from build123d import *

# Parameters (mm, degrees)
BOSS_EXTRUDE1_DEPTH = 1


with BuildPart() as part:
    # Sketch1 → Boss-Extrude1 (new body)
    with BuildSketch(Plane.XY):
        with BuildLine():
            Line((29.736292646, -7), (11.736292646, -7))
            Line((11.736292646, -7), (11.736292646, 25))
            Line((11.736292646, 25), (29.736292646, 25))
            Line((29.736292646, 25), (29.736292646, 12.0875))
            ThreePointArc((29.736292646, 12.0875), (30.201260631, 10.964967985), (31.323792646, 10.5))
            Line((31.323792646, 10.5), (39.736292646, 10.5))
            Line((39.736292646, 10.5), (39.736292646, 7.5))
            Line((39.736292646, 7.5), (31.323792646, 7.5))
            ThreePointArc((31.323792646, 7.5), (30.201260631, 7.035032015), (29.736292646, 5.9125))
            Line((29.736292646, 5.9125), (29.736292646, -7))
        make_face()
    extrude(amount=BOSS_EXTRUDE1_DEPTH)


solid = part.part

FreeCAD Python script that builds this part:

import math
import FreeCAD as App
import Part
import Sketcher
Q = App.Units.Quantity

doc = App.newDocument("Part")
params = doc.addObject("Spreadsheet::Sheet", "Params")
for row, (alias, value) in enumerate([
    ("sketch1_width", "18 mm"),
    ("sketch1_height", "3 mm"),
    ("sketch1_height2", "32 mm"),
    ("pad1_length", "1 mm"),
], start=1):
    params.set(f"A{row}", alias)
    params.set(f"B{row}", "=" + value)
    params.setAlias(f"B{row}", alias)

body = doc.addObject("PartDesign::Body", "Body")

sketch1 = body.newObject("Sketcher::SketchObject", "Sketch")
sketch1.AttachmentSupport = (doc.getObject("XY_Plane"), [""])
sketch1.MapMode = "FlatFace"
sketch1.addGeometry([
    Part.LineSegment(App.Vector(11.7, -7, 0), App.Vector(29.7, -7, 0)),
    Part.LineSegment(App.Vector(29.7, -7, 0), App.Vector(29.7, 5.9, 0)),
    Part.ArcOfCircle(Part.Circle(App.Vector(31.3, 5.9, 0), App.Vector(0, 0, 1), 1.6), math.radians(90), math.radians(180)),
    Part.LineSegment(App.Vector(31.3, 7.5, 0), App.Vector(39.7, 7.5, 0)),
    Part.LineSegment(App.Vector(39.7, 7.5, 0), App.Vector(39.7, 10.5, 0)),
    Part.LineSegment(App.Vector(39.7, 10.5, 0), App.Vector(31.3, 10.5, 0)),
    Part.ArcOfCircle(Part.Circle(App.Vector(31.3, 12.1, 0), App.Vector(0, 0, 1), 1.6), math.radians(180), math.radians(270)),
    Part.LineSegment(App.Vector(29.7, 12.1, 0), App.Vector(29.7, 25, 0)),
    Part.LineSegment(App.Vector(29.7, 25, 0), App.Vector(11.7, 25, 0)),
    Part.LineSegment(App.Vector(11.7, 25, 0), App.Vector(11.7, -7, 0)),
], False)
sketch1.addConstraint([
    Sketcher.Constraint("Coincident", 0, 2, 1, 1),
    Sketcher.Constraint("Tangent", 1, 2, 2, 2),
    Sketcher.Constraint("Tangent", 2, 1, 3, 1),
    Sketcher.Constraint("Coincident", 3, 2, 4, 1),
    Sketcher.Constraint("Coincident", 4, 2, 5, 1),
    Sketcher.Constraint("Tangent", 5, 2, 6, 2),
    Sketcher.Constraint("Tangent", 6, 1, 7, 1),
    Sketcher.Constraint("Coincident", 7, 2, 8, 1),
    Sketcher.Constraint("Coincident", 8, 2, 9, 1),
    Sketcher.Constraint("Coincident", 9, 2, 0, 1),
    Sketcher.Constraint("Horizontal", 0),
    Sketcher.Constraint("Vertical", 1),
    Sketcher.Constraint("Horizontal", 3),
    Sketcher.Constraint("Vertical", 4),
    Sketcher.Constraint("Horizontal", 5),
    Sketcher.Constraint("Vertical", 7),
    Sketcher.Constraint("Horizontal", 8),
    Sketcher.Constraint("Vertical", 9),
    Sketcher.Constraint("Equal", 2, 6),
    Sketcher.Constraint("Vertical", 2, 3, 6, 3),
    Sketcher.Constraint("Equal", 1, 7),
    Sketcher.Constraint("DistanceX", 0, 1, 0, 2, Q("18 mm")),
    Sketcher.Constraint("DistanceY", 4, 1, 4, 2, Q("3 mm")),
    Sketcher.Constraint("DistanceY", 9, 2, 9, 1, Q("32 mm")),
    Sketcher.Constraint("DistanceY", 0, 2, -1, 1, Q("7 mm")),
    Sketcher.Constraint("DistanceX", 1, 2, 3, 2, Q("10 mm")),
    Sketcher.Constraint("Radius", 2, Q("1.5875 mm")),
    Sketcher.Constraint("DistanceX", -1, 1, 2, 3, Q("31.323793 mm")),
])
sketch1.setExpression("Constraints[21]", "Params.sketch1_width")
sketch1.setExpression("Constraints[22]", "Params.sketch1_height")
sketch1.setExpression("Constraints[23]", "Params.sketch1_height2")
pad1 = body.newObject("PartDesign::Pad", "Pad")
pad1.Profile = sketch1
pad1.setExpression("Length", "Params.pad1_length")

doc.recompute()
